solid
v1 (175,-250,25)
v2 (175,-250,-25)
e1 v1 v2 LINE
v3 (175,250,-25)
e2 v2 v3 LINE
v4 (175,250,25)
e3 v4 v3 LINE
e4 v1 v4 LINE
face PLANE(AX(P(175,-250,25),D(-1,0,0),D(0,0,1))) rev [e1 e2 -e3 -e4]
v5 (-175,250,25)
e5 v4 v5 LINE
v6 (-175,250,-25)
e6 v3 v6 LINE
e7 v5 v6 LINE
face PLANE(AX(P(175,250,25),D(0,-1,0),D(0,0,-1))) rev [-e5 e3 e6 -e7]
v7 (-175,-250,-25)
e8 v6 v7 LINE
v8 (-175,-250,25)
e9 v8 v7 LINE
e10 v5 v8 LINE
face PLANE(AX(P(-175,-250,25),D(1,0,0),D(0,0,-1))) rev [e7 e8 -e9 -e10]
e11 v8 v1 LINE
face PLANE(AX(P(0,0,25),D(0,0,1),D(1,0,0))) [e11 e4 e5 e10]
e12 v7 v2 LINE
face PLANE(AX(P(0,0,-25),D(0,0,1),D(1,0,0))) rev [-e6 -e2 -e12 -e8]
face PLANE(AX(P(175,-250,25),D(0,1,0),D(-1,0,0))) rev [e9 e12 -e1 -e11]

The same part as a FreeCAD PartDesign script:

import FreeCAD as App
import Part
import Sketcher

V = App.Vector


def add_polygon(sketch, points):
    """Adds a closed chain of lines whose ends are joined by coincident constraints."""
    first, n = sketch.GeometryCount, len(points)
    for a, b in zip(points, points[1:] + points[:1]):
        sketch.addGeometry(Part.LineSegment(App.Vector(*a, 0), App.Vector(*b, 0)), False)
    for i in range(n):
        sketch.addConstraint(Sketcher.Constraint("Coincident", first + i, 2, first + (i + 1) % n, 1))

doc = App.newDocument("Part")
body = doc.addObject("PartDesign::Body", "Body")

sketch1 = body.newObject("Sketcher::SketchObject", "Sketch")
sketch1.AttachmentSupport = (doc.getObject("XY_Plane"), [""])
sketch1.MapMode = "FlatFace"
add_polygon(sketch1, [(-175, 250), (-175, -250), (175, -250), (175, 250)])
sketch1.addConstraint([
    Sketcher.Constraint("Vertical", 0),
    Sketcher.Constraint("Horizontal", 1),
    Sketcher.Constraint("Vertical", 2),
    Sketcher.Constraint("Horizontal", 3),
    Sketcher.Constraint("Symmetric", 0, 2, 2, 2, -1, 1),
    Sketcher.Constraint("DistanceX", 1, 1, 1, 2, 350.0),
    Sketcher.Constraint("DistanceY", 0, 2, 0, 1, 500.0),
])
pad1 = body.newObject("PartDesign::Pad", "Pad")
pad1.Profile = sketch1
pad1.Length = 50
pad1.Midplane = True

doc.recompute()
